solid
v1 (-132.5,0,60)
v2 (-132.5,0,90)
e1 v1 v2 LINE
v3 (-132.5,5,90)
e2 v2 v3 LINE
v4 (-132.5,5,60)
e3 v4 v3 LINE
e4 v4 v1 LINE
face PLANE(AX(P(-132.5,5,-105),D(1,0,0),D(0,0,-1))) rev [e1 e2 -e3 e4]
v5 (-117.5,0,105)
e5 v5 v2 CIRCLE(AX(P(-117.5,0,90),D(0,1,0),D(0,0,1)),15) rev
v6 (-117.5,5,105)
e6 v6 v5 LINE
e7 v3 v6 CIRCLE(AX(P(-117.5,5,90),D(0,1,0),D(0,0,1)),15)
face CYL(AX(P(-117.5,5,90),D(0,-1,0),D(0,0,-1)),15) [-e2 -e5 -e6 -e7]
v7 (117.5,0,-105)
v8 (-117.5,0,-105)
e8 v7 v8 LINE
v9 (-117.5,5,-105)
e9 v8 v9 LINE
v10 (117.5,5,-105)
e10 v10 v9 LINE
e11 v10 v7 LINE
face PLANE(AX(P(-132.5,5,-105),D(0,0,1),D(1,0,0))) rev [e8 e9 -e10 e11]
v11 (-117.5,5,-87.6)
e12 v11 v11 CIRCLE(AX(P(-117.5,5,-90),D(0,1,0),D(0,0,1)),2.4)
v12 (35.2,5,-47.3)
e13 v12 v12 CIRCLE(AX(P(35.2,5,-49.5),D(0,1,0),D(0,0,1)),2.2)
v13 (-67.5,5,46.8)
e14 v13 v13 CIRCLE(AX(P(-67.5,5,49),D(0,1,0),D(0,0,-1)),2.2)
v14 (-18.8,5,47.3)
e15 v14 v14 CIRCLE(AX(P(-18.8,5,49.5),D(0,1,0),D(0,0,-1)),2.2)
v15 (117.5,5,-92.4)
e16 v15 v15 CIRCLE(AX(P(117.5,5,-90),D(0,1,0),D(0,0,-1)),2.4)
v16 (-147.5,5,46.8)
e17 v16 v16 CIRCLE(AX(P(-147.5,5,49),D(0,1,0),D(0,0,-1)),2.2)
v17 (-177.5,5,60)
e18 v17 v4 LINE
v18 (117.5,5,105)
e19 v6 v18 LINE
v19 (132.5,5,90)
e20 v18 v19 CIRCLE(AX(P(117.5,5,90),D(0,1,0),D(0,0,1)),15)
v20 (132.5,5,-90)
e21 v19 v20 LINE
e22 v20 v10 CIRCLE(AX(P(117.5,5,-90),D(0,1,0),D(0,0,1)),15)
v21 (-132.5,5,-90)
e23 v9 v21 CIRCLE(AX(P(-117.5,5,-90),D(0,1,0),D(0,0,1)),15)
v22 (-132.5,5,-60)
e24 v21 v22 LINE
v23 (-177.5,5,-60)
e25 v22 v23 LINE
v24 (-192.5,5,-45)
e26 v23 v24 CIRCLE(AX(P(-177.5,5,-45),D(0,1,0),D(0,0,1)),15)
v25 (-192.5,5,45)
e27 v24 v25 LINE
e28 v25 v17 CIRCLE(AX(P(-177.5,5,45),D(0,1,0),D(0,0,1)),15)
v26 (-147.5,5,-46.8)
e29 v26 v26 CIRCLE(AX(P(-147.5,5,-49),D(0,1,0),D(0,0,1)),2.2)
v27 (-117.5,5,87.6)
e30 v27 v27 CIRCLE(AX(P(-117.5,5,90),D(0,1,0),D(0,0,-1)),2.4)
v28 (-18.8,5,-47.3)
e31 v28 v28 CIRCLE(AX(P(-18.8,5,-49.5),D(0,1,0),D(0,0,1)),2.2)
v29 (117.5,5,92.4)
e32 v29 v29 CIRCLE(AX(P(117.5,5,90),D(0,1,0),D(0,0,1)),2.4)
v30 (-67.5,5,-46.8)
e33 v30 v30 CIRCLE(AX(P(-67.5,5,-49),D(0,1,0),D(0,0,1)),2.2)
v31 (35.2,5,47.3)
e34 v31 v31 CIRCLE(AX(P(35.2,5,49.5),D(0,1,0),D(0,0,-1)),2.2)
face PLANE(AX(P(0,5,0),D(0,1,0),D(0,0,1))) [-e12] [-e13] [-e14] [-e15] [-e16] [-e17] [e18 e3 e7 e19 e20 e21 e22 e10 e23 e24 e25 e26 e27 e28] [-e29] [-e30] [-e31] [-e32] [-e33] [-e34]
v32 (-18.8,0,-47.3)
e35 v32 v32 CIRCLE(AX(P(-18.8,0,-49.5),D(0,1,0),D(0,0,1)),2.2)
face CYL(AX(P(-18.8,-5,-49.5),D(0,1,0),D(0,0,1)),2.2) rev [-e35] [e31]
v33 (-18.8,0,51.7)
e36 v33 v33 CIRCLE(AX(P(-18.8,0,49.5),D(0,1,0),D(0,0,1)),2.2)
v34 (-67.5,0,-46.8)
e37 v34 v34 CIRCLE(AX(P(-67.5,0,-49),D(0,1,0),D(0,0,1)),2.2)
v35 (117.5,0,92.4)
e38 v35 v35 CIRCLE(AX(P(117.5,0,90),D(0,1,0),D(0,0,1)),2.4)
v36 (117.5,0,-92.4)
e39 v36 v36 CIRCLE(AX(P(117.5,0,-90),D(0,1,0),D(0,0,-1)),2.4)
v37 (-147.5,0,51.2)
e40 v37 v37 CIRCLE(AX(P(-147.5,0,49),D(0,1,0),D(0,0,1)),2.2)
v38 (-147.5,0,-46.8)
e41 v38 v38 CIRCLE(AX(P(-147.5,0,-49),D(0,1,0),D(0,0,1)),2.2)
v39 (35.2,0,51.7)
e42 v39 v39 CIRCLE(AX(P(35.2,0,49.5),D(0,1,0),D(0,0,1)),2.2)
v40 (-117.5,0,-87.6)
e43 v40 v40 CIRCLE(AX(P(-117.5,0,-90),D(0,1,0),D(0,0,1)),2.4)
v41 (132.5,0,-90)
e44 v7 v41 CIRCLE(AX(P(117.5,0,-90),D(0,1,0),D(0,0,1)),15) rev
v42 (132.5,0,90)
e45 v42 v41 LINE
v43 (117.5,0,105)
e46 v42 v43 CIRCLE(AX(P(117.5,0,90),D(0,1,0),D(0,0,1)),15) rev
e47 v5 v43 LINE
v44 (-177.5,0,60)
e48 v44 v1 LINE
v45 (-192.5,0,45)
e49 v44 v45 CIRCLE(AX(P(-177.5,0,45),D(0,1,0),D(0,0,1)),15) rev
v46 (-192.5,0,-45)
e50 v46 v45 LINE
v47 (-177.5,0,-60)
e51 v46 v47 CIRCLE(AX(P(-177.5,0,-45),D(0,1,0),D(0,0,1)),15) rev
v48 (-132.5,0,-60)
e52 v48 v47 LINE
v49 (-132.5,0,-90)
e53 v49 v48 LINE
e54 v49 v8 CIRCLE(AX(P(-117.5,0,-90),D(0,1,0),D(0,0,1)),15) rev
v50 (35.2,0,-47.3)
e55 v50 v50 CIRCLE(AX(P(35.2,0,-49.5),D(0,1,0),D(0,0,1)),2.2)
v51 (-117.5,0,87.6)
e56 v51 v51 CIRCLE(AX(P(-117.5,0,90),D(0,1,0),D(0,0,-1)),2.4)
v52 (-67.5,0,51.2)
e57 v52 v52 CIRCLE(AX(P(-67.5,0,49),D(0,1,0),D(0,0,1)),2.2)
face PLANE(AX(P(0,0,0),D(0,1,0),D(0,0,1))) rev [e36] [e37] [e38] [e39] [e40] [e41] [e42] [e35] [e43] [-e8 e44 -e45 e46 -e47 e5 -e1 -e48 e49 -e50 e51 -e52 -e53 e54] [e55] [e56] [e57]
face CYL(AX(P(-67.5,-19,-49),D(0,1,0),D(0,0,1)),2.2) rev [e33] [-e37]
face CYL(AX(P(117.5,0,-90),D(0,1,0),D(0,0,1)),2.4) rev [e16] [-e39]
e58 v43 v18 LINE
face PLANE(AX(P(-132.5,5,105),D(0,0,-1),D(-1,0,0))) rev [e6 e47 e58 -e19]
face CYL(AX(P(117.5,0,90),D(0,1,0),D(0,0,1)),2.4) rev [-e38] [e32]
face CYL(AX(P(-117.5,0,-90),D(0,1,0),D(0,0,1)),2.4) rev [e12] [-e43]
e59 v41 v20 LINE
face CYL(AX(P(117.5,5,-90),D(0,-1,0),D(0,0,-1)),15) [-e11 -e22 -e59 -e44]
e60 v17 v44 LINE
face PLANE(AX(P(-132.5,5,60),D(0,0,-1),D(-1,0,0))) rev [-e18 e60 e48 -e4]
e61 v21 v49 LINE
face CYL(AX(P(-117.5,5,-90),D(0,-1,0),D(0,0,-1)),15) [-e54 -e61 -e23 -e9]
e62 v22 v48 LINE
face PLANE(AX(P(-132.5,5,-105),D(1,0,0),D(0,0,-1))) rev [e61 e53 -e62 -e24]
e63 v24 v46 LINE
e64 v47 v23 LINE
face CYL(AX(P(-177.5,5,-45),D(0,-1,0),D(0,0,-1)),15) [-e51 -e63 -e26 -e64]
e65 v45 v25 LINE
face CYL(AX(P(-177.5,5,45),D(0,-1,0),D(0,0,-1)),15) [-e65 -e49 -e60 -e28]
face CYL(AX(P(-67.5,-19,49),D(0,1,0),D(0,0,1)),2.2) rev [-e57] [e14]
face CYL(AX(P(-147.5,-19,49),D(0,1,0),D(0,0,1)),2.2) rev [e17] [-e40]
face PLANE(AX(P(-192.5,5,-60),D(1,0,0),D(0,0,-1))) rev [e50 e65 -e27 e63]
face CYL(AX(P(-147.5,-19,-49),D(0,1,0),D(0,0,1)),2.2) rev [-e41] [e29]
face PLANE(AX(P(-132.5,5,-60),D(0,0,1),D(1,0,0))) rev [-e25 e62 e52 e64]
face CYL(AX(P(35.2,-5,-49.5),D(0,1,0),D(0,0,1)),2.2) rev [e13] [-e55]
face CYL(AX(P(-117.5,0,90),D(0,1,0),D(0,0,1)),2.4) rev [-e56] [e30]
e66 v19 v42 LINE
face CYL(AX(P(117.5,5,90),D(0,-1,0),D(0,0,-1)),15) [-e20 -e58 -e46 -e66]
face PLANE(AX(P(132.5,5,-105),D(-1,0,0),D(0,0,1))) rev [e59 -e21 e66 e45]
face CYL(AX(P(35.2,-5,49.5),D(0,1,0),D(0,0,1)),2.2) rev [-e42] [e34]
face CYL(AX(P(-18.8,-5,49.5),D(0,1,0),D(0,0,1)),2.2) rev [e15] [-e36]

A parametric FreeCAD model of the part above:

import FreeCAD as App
import Part
import Sketcher
from FreeCAD import Vector


def edges_at(feature, points):
    """Names of the edges that pass closest to the given points."""
    edges = feature.Shape.Edges
    near = lambda p: min(range(len(edges)), key=lambda i: edges[i].distToShape(Part.Vertex(*p))[0])
    return sorted({f"Edge{near(p) + 1}" for p in points})


def add_polygon(sketch, points):
    """Adds a closed chain of lines whose ends are joined by coincident constraints."""
    first, n = sketch.GeometryCount, len(points)
    for a, b in zip(points, points[1:] + points[:1]):
        sketch.addGeometry(Part.LineSegment(App.Vector(*a, 0), App.Vector(*b, 0)), False)
    for i in range(n):
        sketch.addConstraint(Sketcher.Constraint("Coincident", first + i, 2, first + (i + 1) % n, 1))

doc = App.newDocument("Part")
body = doc.addObject("PartDesign::Body", "Body")

# Sketch on XZ plane
sketch1 = doc.addObject("Sketcher::SketchObject", "Sketch")
body.addObject(sketch1)
sketch1.AttachmentSupport = (doc.XZ_Plane, [""])
sketch1.MapMode = "FlatFace"
add_polygon(sketch1, [(-132, -105), (-132, 105), (132, 105), (132, -105)])  # lines 0-3
sketch1.addConstraint([
    Sketcher.Constraint("Vertical", 0),
    Sketcher.Constraint("Horizontal", 1),
    Sketcher.Constraint("Vertical", 2),
    Sketcher.Constraint("Horizontal", 3),
    Sketcher.Constraint("Symmetric", 0, 2, 2, 2, -1, 1),
    Sketcher.Constraint("DistanceX", 1, 1, 1, 2, 265.0),
    Sketcher.Constraint("DistanceY", 0, 1, 0, 2, 210.0),
])
pad1 = doc.addObject("PartDesign::Pad", "Pad")
body.addObject(pad1)
pad1.Profile = sketch1
pad1.Length = 5
pad1.Reversed = True

# Sketch on XZ plane
sketch2 = doc.addObject("Sketcher::SketchObject", "Sketch001")
body.addObject(sketch2)
sketch2.AttachmentSupport = (doc.XZ_Plane, [""])
sketch2.MapMode = "FlatFace"
sketch2.AttachmentOffset = App.Placement(Vector(0, 0, -5), App.Rotation())
sketch2.addGeometry([
    Part.Circle(Vector(-117.5, -90, 0), Vector(0, 0, 1), 2.4),
    Part.Circle(Vector(117.5, -90, 0), Vector(0, 0, 1), 2.4),
    Part.Circle(Vector(117.5, 90, 0), Vector(0, 0, 1), 2.4),
    Part.Circle(Vector(-117.5, 90, 0), Vector(0, 0, 1), 2.4),
], False)
sketch2.addConstraint([
    Sketcher.Constraint("Equal", 0, 1),
    Sketcher.Constraint("Equal", 1, 2),
    Sketcher.Constraint("Equal", 2, 3),
    Sketcher.Constraint("Symmetric", 0, 3, 2, 3, -1, 1),
    Sketcher.Constraint("Symmetric", 1, 3, 3, 3, -1, 1),
    Sketcher.Constraint("Symmetric", 0, 3, 1, 3, -2),
    Sketcher.Constraint("Diameter", 0, 4.8),
    Sketcher.Constraint("DistanceY", 0, 3, -1, 1, 90.0),
    Sketcher.Constraint("DistanceX", 0, 3, 1, 3, 235.0),
])
pocket1 = doc.addObject("PartDesign::Pocket", "Pocket")
body.addObject(pocket1)
pocket1.Profile = sketch2
pocket1.Length = 5
pocket1.Reversed = True
doc.recompute()

fillet = doc.addObject("PartDesign::Fillet", "Fillet")
body.addObject(fillet)
fillet.Base = (pocket1, edges_at(pocket1, [
    (-132.5, 2.5, -105),
    (132.5, 2.5, -105),
    (132.5, 2.5, 105),
    (-132.5, 2.5, 105),
]))
fillet.Radius = 15

# Sketch on XZ plane
sketch3 = doc.addObject("Sketcher::SketchObject", "Sketch002")
body.addObject(sketch3)
sketch3.AttachmentSupport = (doc.XZ_Plane, [""])
sketch3.MapMode = "FlatFace"
add_polygon(sketch3, [(-192, -60), (-192, 60), (-132, 60), (-132, -60)])  # lines 0-3
sketch3.addConstraint([
    Sketcher.Constraint("Vertical", 0),
    Sketcher.Constraint("Horizontal", 1),
    Sketcher.Constraint("Vertical", 2),
    Sketcher.Constraint("Horizontal", 3),
    Sketcher.Constraint("DistanceX", 1, 1, 1, 2, 60.0),
    Sketcher.Constraint("DistanceY", 0, 1, 0, 2, 120.0),
    Sketcher.Constraint("DistanceY", -1, 1, 0, 2, 60.0),
    Sketcher.Constraint("DistanceX", 0, 2, -1, 1, 192.5),
])
pad2 = doc.addObject("PartDesign::Pad", "Pad001")
body.addObject(pad2)
pad2.Profile = sketch3
pad2.Length = 5
pad2.Reversed = True
doc.recompute()

fillet2 = doc.addObject("PartDesign::Fillet", "Fillet001")
body.addObject(fillet2)
fillet2.Base = (pad2, edges_at(pad2, [(-192.5, 2.5, -60), (-192.5, 2.5, 60)]))
fillet2.Radius = 15

# Sketch on XZ plane
sketch4 = doc.addObject("Sketcher::SketchObject", "Sketch003")
body.addObject(sketch4)
sketch4.AttachmentSupport = (doc.XZ_Plane, [""])
sketch4.MapMode = "FlatFace"
sketch4.AttachmentOffset = App.Placement(Vector(0, 0, -5), App.Rotation())
sketch4.addGeometry([
    Part.Circle(Vector(-147.5, -49, 0), Vector(0, 0, 1), 2.2),
    Part.Circle(Vector(-67.5, -49, 0), Vector(0, 0, 1), 2.2),
    Part.Circle(Vector(-67.5, 49, 0), Vector(0, 0, 1), 2.2),
    Part.Circle(Vector(-147.5, 49, 0), Vector(0, 0, 1), 2.2),
], False)
sketch4.addConstraint([
    Sketcher.Constraint("Equal", 0, 1),
    Sketcher.Constraint("Equal", 1, 2),
    Sketcher.Constraint("Equal", 2, 3),
    Sketcher.Constraint("Symmetric", 1, 3, 2, 3, -1),
    Sketcher.Constraint("Symmetric", 0, 3, 3, 3, -1),
    Sketcher.Constraint("Horizontal", 0, 3, 1, 3),
    Sketcher.Constraint("Diameter", 0, 4.4),
    Sketcher.Constraint("DistanceY", 0, 3, -1, 1, 49.0),
    Sketcher.Constraint("DistanceX", 0, 3, 1, 3, 80.0),
    Sketcher.Constraint("DistanceX", 0, 3, -1, 1, 147.5),
])
pocket2 = doc.addObject("PartDesign::Pocket", "Pocket001")
body.addObject(pocket2)
pocket2.Profile = sketch4
pocket2.Length = 24
pocket2.Reversed = True

# Sketch on XZ plane
sketch5 = doc.addObject("Sketcher::SketchObject", "Sketch004")
body.addObject(sketch5)
sketch5.AttachmentSupport = (doc.XZ_Plane, [""])
sketch5.MapMode = "FlatFace"
sketch5.AttachmentOffset = App.Placement(Vector(0, 0, -5), App.Rotation())
sketch5.addGeometry([
    Part.Circle(Vector(-18.8, -49.5, 0), Vector(0, 0, 1), 2.2),
    Part.Circle(Vector(35.2, -49.5, 0), Vector(0, 0, 1), 2.2),
    Part.Circle(Vector(35.2, 49.5, 0), Vector(0, 0, 1), 2.2),
    Part.Circle(Vector(-18.8, 49.5, 0), Vector(0, 0, 1), 2.2),
], False)
sketch5.addConstraint([
    Sketcher.Constraint("Equal", 0, 1),
    Sketcher.Constraint("Equal", 1, 2),
    Sketcher.Constraint("Equal", 2, 3),
    Sketcher.Constraint("Symmetric", 1, 3, 2, 3, -1),
    Sketcher.Constraint("Symmetric", 0, 3, 3, 3, -1),
    Sketcher.Constraint("Horizontal", 0, 3, 1, 3),
    Sketcher.Constraint("Diameter", 0, 4.4),
    Sketcher.Constraint("DistanceX", 0, 3, 1, 3, 54.0),
    Sketcher.Constraint("DistanceY", 1, 3, 2, 3, 99.0),
    Sketcher.Constraint("DistanceX", 0, 3, -1, 1, 18.8),
])
pocket3 = doc.addObject("PartDesign::Pocket", "Pocket002")
body.addObject(pocket3)
pocket3.Profile = sketch5
pocket3.Length = 10
pocket3.Reversed = True

doc.recompute()
